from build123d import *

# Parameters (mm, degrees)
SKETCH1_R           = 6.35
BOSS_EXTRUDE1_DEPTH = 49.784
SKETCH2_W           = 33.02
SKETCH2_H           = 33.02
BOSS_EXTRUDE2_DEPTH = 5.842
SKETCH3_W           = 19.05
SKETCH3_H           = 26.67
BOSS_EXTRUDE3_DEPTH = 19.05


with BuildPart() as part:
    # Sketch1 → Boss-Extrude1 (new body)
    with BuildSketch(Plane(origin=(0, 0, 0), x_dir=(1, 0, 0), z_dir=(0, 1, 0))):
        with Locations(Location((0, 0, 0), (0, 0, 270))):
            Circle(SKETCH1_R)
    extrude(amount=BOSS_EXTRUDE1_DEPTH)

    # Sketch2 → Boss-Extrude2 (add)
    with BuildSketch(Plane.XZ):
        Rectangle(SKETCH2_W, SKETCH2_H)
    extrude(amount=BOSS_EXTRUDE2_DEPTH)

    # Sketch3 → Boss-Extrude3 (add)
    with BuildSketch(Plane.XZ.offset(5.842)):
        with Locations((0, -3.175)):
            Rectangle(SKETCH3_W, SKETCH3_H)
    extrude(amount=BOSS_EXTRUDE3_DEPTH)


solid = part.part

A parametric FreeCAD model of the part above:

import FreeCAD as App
import Part
import Sketcher
from FreeCAD import Vector
Q = App.Units.Quantity

doc = App.newDocument("Part")
body = doc.addObject("PartDesign::Body", "Body")

sketch1 = body.newObject("Sketcher::SketchObject", "Sketch")
sketch1.AttachmentSupport = (doc.getObject("XZ_Plane"), [""])
sketch1.MapMode = "FlatFace"
sketch1.addGeometry(Part.Circle(Vector(0, 0, 0), Vector(0, 0, 1), 6), False)
sketch1.addConstraint(Sketcher.Constraint("Coincident", 0, 3, -1, 1))
sketch1.addConstraint(Sketcher.Constraint("Diameter", 0, Q("0.5 in")))
pad1 = body.newObject("PartDesign::Pad", "Pad")
pad1.Profile = sketch1
pad1.Length = Q("1.96 in")
pad1.Reversed = True

sketch2 = body.newObject("Sketcher::SketchObject", "Sketch001")
sketch2.AttachmentSupport = (doc.getObject("XZ_Plane"), [""])
sketch2.MapMode = "FlatFace"
sketch2.addGeometry(Part.LineSegment(Vector(-17, 17, 0), Vector(-17, -17, 0)), False)
sketch2.addGeometry(Part.LineSegment(Vector(-17, -17, 0), Vector(17, -17, 0)), False)
sketch2.addGeometry(Part.LineSegment(Vector(17, -17, 0), Vector(17, 17, 0)), False)
sketch2.addGeometry(Part.LineSegment(Vector(17, 17, 0), Vector(-17, 17, 0)), False)
sketch2.addConstraint(Sketcher.Constraint("Coincident", 0, 2, 1, 1))
sketch2.addConstraint(Sketcher.Constraint("Coincident", 1, 2, 2, 1))
sketch2.addConstraint(Sketcher.Constraint("Coincident", 2, 2, 3, 1))
sketch2.addConstraint(Sketcher.Constraint("Coincident", 3, 2, 0, 1))
sketch2.addConstraint(Sketcher.Constraint("Vertical", 0))
sketch2.addConstraint(Sketcher.Constraint("Horizontal", 1))
sketch2.addConstraint(Sketcher.Constraint("Vertical", 2))
sketch2.addConstraint(Sketcher.Constraint("Horizontal", 3))
sketch2.addConstraint(Sketcher.Constraint("Symmetric", 0, 2, 2, 2, -1, 1))
sketch2.addConstraint(Sketcher.Constraint("Equal", 3, 0))
sketch2.addConstraint(Sketcher.Constraint("DistanceX", 1, 1, 1, 2, Q("1.3 in")))
pad2 = body.newObject("PartDesign::Pad", "Pad001")
pad2.Profile = sketch2
pad2.Length = Q("0.23 in")

sketch3 = body.newObject("Sketcher::SketchObject", "Sketch002")
sketch3.AttachmentSupport = (doc.getObject("XZ_Plane"), [""])
sketch3.MapMode = "FlatFace"
sketch3.AttachmentOffset = App.Placement(Vector(0, 0, 0.23 * 25.4), App.Rotation())
sketch3.addGeometry(Part.LineSegment(Vector(-10, 10, 0), Vector(-10, -17, 0)), False)
sketch3.addGeometry(Part.LineSegment(Vector(-10, -17, 0), Vector(10, -17, 0)), False)
sketch3.addGeometry(Part.LineSegment(Vector(10, -17, 0), Vector(10, 10, 0)), False)
sketch3.addGeometry(Part.LineSegment(Vector(10, 10, 0), Vector(-10, 10, 0)), False)
sketch3.addConstraint(Sketcher.Constraint("Coincident", 0, 2, 1, 1))
sketch3.addConstraint(Sketcher.Constraint("Coincident", 1, 2, 2, 1))
sketch3.addConstraint(Sketcher.Constraint("Coincident", 2, 2, 3, 1))
sketch3.addConstraint(Sketcher.Constraint("Coincident", 3, 2, 0, 1))
sketch3.addConstraint(Sketcher.Constraint("Vertical", 0))
sketch3.addConstraint(Sketcher.Constraint("Horizontal", 1))
sketch3.addConstraint(Sketcher.Constraint("Vertical", 2))
sketch3.addConstraint(Sketcher.Constraint("Horizontal", 3))
sketch3.addConstraint(Sketcher.Constraint("DistanceX", 1, 1, 1, 2, Q("0.75 in")))
sketch3.addConstraint(Sketcher.Constraint("DistanceY", 0, 2, 0, 1, Q("1.05 in")))
sketch3.addConstraint(Sketcher.Constraint("DistanceY", -1, 1, 2, 2, Q("0.4 in")))
sketch3.addConstraint(Sketcher.Constraint("DistanceX", 0, 2, -1, 1, Q("0.375 in")))
pad3 = body.newObject("PartDesign::Pad", "Pad002")
pad3.Profile = sketch3
pad3.Length = Q("0.75 in")

doc.recompute()
